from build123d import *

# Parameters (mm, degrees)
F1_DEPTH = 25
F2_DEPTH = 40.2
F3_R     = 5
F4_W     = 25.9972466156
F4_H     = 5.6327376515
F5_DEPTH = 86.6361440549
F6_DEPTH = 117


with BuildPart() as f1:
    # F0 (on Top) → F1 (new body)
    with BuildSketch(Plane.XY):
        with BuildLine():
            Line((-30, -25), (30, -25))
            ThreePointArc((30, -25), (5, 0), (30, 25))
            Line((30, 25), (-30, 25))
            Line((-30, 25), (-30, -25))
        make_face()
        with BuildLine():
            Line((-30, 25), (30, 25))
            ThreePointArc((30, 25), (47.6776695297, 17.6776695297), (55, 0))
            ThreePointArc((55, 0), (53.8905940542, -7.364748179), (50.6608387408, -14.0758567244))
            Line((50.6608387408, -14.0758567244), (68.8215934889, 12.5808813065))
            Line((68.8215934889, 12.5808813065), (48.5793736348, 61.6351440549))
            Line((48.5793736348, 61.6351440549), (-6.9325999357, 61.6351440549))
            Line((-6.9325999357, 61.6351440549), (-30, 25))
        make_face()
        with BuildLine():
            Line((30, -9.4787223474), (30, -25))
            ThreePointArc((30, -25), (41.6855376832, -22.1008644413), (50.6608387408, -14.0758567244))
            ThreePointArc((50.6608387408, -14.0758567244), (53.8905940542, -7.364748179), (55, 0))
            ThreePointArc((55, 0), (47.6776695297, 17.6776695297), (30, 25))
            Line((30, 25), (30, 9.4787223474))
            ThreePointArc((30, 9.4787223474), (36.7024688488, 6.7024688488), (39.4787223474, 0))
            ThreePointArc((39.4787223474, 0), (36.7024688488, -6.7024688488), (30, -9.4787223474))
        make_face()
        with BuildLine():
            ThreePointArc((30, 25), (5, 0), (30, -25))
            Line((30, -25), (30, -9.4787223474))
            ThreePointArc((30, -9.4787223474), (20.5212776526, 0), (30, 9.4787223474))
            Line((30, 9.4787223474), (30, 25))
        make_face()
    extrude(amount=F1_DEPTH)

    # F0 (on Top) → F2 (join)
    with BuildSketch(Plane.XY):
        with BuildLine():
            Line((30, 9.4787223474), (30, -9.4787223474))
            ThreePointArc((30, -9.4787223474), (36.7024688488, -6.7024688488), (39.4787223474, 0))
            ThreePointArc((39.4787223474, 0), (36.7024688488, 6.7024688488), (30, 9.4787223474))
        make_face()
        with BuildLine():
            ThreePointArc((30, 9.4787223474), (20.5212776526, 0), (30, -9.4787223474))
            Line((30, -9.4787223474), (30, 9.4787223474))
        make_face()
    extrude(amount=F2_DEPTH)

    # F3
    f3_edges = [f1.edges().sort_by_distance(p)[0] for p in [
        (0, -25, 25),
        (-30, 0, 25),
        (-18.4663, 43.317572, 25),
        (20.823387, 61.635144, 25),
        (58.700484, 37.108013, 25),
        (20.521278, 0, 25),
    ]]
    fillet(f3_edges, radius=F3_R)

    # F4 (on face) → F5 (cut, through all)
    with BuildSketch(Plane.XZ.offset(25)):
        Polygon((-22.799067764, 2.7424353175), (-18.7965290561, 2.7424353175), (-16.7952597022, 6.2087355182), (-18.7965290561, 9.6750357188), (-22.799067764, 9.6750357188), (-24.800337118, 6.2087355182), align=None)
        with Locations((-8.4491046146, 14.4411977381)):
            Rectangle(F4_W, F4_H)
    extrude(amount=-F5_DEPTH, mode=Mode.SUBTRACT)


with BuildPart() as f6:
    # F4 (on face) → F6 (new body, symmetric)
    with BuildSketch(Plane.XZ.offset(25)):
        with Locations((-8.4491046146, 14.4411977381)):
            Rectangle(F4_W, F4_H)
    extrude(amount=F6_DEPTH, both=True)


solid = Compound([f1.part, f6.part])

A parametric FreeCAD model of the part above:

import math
import FreeCAD as App
import Part
import Sketcher

V = App.Vector
Q = App.Units.Quantity


def edges_at(feature, points):
    """Names of the edges that pass closest to the given points."""
    edges = feature.Shape.Edges
    near = lambda p: min(range(len(edges)), key=lambda i: edges[i].distToShape(Part.Vertex(*p))[0])
    return sorted({f"Edge{near(p) + 1}" for p in points})


def add_polygon(sketch, points):
    """Adds a closed chain of lines whose ends are joined by coincident constraints."""
    first, n = sketch.GeometryCount, len(points)
    for a, b in zip(points, points[1:] + points[:1]):
        sketch.addGeometry(Part.LineSegment(App.Vector(*a, 0), App.Vector(*b, 0)), False)
    for i in range(n):
        sketch.addConstraint(Sketcher.Constraint("Coincident", first + i, 2, first + (i + 1) % n, 1))

doc = App.newDocument("Part")
body = doc.addObject("PartDesign::Body", "Body")

sketch1 = body.newObject("Sketcher::SketchObject", "Sketch")
sketch1.AttachmentSupport = (doc.getObject("XY_Plane"), [""])
sketch1.MapMode = "FlatFace"
sketch1.addGeometry([
    Part.LineSegment(V(-30, -25, 0), V(30, -25, 0)),
    Part.ArcOfCircle(Part.Circle(V(30, 0, 0), V(0, 0, 1), 25), math.radians(-90), math.radians(-34)),
    Part.LineSegment(V(51, -14, 0), V(69, 13, 0)),
    Part.LineSegment(V(69, 13, 0), V(49, 62, 0)),
    Part.LineSegment(V(49, 62, 0), V(-7, 62, 0)),
    Part.LineSegment(V(-7, 62, 0), V(-30, 25, 0)),
    Part.LineSegment(V(-30, 25, 0), V(-30, -25, 0)),
    Part.ArcOfCircle(Part.Circle(V(30, 0, 0), V(0, 0, 1), 9), math.radians(-90), math.radians(0)),
    Part.ArcOfCircle(Part.Circle(V(30, 0, 0), V(0, 0, 1), 9), math.radians(90), math.radians(270)),
    Part.ArcOfCircle(Part.Circle(V(30, 0, 0), V(0, 0, 1), 9), math.radians(0), math.radians(90)),
], False)
sketch1.addConstraint([
    Sketcher.Constraint("Tangent", 0, 2, 1, 1),
    Sketcher.Constraint("Tangent", 1, 2, 2, 1),
    Sketcher.Constraint("Coincident", 2, 2, 3, 1),
    Sketcher.Constraint("Coincident", 3, 2, 4, 1),
    Sketcher.Constraint("Coincident", 4, 2, 5, 1),
    Sketcher.Constraint("Coincident", 5, 2, 6, 1),
    Sketcher.Constraint("Coincident", 6, 2, 0, 1),
    Sketcher.Constraint("Tangent", 7, 1, 8, 2),
    Sketcher.Constraint("Tangent", 8, 1, 9, 2),
    Sketcher.Constraint("Tangent", 9, 1, 7, 2),
    Sketcher.Constraint("Horizontal", 0),
    Sketcher.Constraint("Horizontal", 4),
    Sketcher.Constraint("Vertical", 6),
    Sketcher.Constraint("Coincident", 7, 3, 1, 3),
    Sketcher.Constraint("Symmetric", 0, 2, 5, 2, -1, 1),
    Sketcher.Constraint("Symmetric", 7, 1, 8, 1, -1),
    Sketcher.Constraint("PointOnObject", 9, 1, -1),
    Sketcher.Constraint("Vertical", 0, 2, 7, 1),
    Sketcher.Constraint("Radius", 1, Q("25 mm")),
    Sketcher.Constraint("DistanceX", 0, 1, 0, 2, Q("60 mm")),
    Sketcher.Constraint("Radius", 7, Q("9.478722 mm")),
    Sketcher.Constraint("DistanceX", 4, 2, -1, 1, Q("6.9326 mm")),
    Sketcher.Constraint("Distance", 2, Q("32.25515 mm")),
    Sketcher.Constraint("Distance", 3, Q("53.066639 mm")),
    Sketcher.Constraint("Distance", 5, Q("43.292479 mm")),
    Sketcher.Constraint("DistanceX", 4, 2, 4, 1, Q("55.511974 mm")),
])
pad1 = body.newObject("PartDesign::Pad", "Pad")
pad1.Profile = sketch1
pad1.Length = 25

sketch2 = body.newObject("Sketcher::SketchObject", "Sketch001")
sketch2.AttachmentSupport = (doc.getObject("XY_Plane"), [""])
sketch2.MapMode = "FlatFace"
sketch2.addGeometry([
    Part.ArcOfCircle(Part.Circle(V(30, 0, 0), V(0, 0, 1), 9), math.radians(-90), math.radians(0)),
    Part.ArcOfCircle(Part.Circle(V(30, 0, 0), V(0, 0, 1), 9), math.radians(0), math.radians(90)),
    Part.ArcOfCircle(Part.Circle(V(30, 0, 0), V(0, 0, 1), 9), math.radians(90), math.radians(270)),
], False)
sketch2.addConstraint([
    Sketcher.Constraint("Tangent", 0, 2, 1, 1),
    Sketcher.Constraint("Tangent", 1, 2, 2, 1),
    Sketcher.Constraint("Tangent", 2, 2, 0, 1),
    Sketcher.Constraint("Symmetric", 1, 2, 2, 2, -1),
    Sketcher.Constraint("PointOnObject", 0, 2, -1),
    Sketcher.Constraint("Vertical", 2, 3, 1, 2),
    Sketcher.Constraint("DistanceX", -1, 1, 0, 3, Q("30 mm")),
    Sketcher.Constraint("Radius", 0, Q("9.478722 mm")),
])
pad2 = body.newObject("PartDesign::Pad", "Pad001")
pad2.Profile = sketch2
pad2.Length = 40.2
doc.recompute()

fillet = body.newObject("PartDesign::Fillet", "Fillet")
fillet.Base = (pad2, edges_at(pad2, [
    (0, -25, 25),
    (-30, 0, 25),
    (-18.466, 43.318, 25),
    (20.823, 61.635, 25),
    (58.7, 37.108, 25),
    (20.521, 0, 25),
]))
fillet.Radius = 5

sketch3 = body.newObject("Sketcher::SketchObject", "Sketch002")
sketch3.AttachmentSupport = (doc.getObject("XZ_Plane"), [""])
sketch3.MapMode = "FlatFace"
sketch3.AttachmentOffset = App.Placement(V(0, 0, 25), App.Rotation())
add_polygon(sketch3, [(-22.8, 2.7), (-18.8, 2.7), (-16.8, 6.2), (-18.8, 9.7), (-22.8, 9.7), (-24.8, 6.2)])
add_polygon(sketch3, [(-21.4, 17.3), (-21.4, 11.6), (4.5, 11.6), (4.5, 17.3)])
sketch3.addConstraint([
    Sketcher.Constraint("Horizontal", 0),
    Sketcher.Constraint("Horizontal", 3),
    Sketcher.Constraint("Vertical", 6),
    Sketcher.Constraint("Horizontal", 7),
    Sketcher.Constraint("Vertical", 8),
    Sketcher.Constraint("Horizontal", 9),
    Sketcher.Constraint("Parallel", 1, 4),
    Sketcher.Constraint("Parallel", 2, 5),
    Sketcher.Constraint("Horizontal", 1, 2, 4, 2),
    Sketcher.Constraint("Vertical", 0, 2, 2, 2),
    Sketcher.Constraint("Vertical", 3, 2, 5, 2),
    Sketcher.Constraint("Angle", 1, Q("60 deg")),
    Sketcher.Constraint("DistanceX", 0, 1, 0, 2, Q("4.002539 mm")),
    Sketcher.Constraint("DistanceY", 0, 2, 1, 2, Q("3.4663 mm")),
    Sketcher.Constraint("DistanceX", 6, 2, 2, 2, Q("2.651199 mm")),
    Sketcher.Constraint("DistanceX", 7, 1, 7, 2, Q("25.997247 mm")),
    Sketcher.Constraint("DistanceY", 6, 2, 6, 1, Q("5.632738 mm")),
    Sketcher.Constraint("DistanceX", 0, 2, -1, 1, Q("18.796529 mm")),
    Sketcher.Constraint("DistanceY", -1, 1, 6, 2, Q("11.624829 mm")),
    Sketcher.Constraint("DistanceY", 1, 2, 8, 2, Q("11.048831 mm")),
])
pocket1 = body.newObject("PartDesign::Pocket", "Pocket")
pocket1.Profile = sketch3
pocket1.Type = "ThroughAll"
body2 = doc.addObject("PartDesign::Body", "Body001")

sketch4 = body2.newObject("Sketcher::SketchObject", "Sketch003")
sketch4.AttachmentSupport = (doc.getObject("XZ_Plane001"), [""])
sketch4.MapMode = "FlatFace"
sketch4.AttachmentOffset = App.Placement(V(0, 0, 25), App.Rotation())
add_polygon(sketch4, [(-21, 17), (-21, 12), (5, 12), (5, 17)])
sketch4.addConstraint([
    Sketcher.Constraint("Vertical", 0),
    Sketcher.Constraint("Horizontal", 1),
    Sketcher.Constraint("Vertical", 2),
    Sketcher.Constraint("Horizontal", 3),
    Sketcher.Constraint("DistanceX", 1, 1, 1, 2, Q("25.997247 mm")),
    Sketcher.Constraint("DistanceY", 0, 2, 0, 1, Q("5.632738 mm")),
    Sketcher.Constraint("DistanceY", -1, 1, 0, 2, Q("11.624829 mm")),
    Sketcher.Constraint("DistanceX", -1, 1, 1, 2, Q("4.549519 mm")),
])
pad3 = body2.newObject("PartDesign::Pad", "Pad002")
pad3.Profile = sketch4
pad3.Length = 234
pad3.Midplane = True

doc.recompute()
